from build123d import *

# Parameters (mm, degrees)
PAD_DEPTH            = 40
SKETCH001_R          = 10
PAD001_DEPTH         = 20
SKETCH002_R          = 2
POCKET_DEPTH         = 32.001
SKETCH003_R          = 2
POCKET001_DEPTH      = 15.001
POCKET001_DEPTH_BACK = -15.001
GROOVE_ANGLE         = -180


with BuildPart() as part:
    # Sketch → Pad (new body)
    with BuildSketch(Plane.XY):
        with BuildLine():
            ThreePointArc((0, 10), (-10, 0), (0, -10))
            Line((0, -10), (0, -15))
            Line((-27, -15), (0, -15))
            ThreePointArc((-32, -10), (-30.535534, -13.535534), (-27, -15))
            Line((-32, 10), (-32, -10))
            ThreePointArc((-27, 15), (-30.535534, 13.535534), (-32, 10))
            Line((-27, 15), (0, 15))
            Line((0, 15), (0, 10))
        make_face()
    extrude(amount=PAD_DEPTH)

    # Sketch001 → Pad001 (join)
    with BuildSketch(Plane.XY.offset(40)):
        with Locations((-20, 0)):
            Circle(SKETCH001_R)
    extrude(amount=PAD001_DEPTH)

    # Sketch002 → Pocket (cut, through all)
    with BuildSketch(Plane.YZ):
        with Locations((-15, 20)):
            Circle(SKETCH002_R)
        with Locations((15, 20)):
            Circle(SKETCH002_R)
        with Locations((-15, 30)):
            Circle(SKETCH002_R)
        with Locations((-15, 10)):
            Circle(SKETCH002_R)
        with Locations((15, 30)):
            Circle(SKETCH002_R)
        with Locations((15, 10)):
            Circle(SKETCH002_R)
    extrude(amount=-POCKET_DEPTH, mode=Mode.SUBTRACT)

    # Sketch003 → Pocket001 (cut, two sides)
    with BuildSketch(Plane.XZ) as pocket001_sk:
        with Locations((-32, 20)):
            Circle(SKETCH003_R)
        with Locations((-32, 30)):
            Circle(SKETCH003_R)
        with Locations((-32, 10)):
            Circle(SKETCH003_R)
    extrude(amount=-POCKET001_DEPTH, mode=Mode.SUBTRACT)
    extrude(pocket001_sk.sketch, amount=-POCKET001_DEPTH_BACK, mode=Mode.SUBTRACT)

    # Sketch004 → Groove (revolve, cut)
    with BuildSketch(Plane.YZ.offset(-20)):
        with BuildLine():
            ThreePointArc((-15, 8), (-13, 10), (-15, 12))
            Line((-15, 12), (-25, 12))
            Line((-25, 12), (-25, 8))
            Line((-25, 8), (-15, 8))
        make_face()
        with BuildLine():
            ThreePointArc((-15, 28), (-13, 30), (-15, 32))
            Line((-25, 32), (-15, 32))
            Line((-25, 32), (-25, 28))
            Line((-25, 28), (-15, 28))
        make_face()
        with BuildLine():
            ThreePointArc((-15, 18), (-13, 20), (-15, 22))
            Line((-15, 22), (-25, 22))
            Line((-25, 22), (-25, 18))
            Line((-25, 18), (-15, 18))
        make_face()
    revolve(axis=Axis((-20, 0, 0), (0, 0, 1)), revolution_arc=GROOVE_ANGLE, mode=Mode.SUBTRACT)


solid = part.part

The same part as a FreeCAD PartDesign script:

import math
import FreeCAD as App
import Part
import Sketcher
from FreeCAD import Vector
Q = App.Units.Quantity

doc = App.newDocument("Part")
body = doc.addObject("PartDesign::Body", "Body")

sketch1 = body.newObject("Sketcher::SketchObject", "Sketch")
sketch1.AttachmentSupport = (doc.getObject("XY_Plane"), [""])
sketch1.MapMode = "FlatFace"
sketch1.addGeometry([
    Part.ArcOfCircle(Part.Circle(Vector(0, 0, 0), Vector(0, 0, 1), 10), math.radians(90), math.radians(270)),
    Part.LineSegment(Vector(0, 10, 0), Vector(0, 15, 0)),
    Part.LineSegment(Vector(0, 15, 0), Vector(-27, 15, 0)),
    Part.ArcOfCircle(Part.Circle(Vector(-27, 10, 0), Vector(0, 0, 1), 5), math.radians(90), math.radians(180)),
    Part.LineSegment(Vector(-32, 10, 0), Vector(-32, -10, 0)),
    Part.ArcOfCircle(Part.Circle(Vector(-27, -10, 0), Vector(0, 0, 1), 5), math.radians(180), math.radians(270)),
    Part.LineSegment(Vector(-27, -15, 0), Vector(0, -15, 0)),
    Part.LineSegment(Vector(0, -15, 0), Vector(0, -10, 0)),
], False)
sketch1.addConstraint([
    Sketcher.Constraint("Coincident", 0, 1, 1, 1),
    Sketcher.Constraint("Coincident", 1, 2, 2, 1),
    Sketcher.Constraint("Tangent", 2, 2, 3, 1),
    Sketcher.Constraint("Tangent", 3, 2, 4, 1),
    Sketcher.Constraint("Tangent", 4, 2, 5, 1),
    Sketcher.Constraint("Tangent", 5, 2, 6, 1),
    Sketcher.Constraint("Coincident", 6, 2, 7, 1),
    Sketcher.Constraint("Coincident", 7, 2, 0, 2),
    Sketcher.Constraint("Vertical", 1),
    Sketcher.Constraint("Horizontal", 2),
    Sketcher.Constraint("Vertical", 4),
    Sketcher.Constraint("Horizontal", 6),
    Sketcher.Constraint("Vertical", 7),
    Sketcher.Constraint("Coincident", 0, 3, -1, 1),
    Sketcher.Constraint("Equal", 3, 5),
    Sketcher.Constraint("Symmetric", 1, 2, 6, 2, -1, 1),
    Sketcher.Constraint("PointOnObject", 0, 1, -2),
    Sketcher.Constraint("Horizontal", 3, 3, 0, 1),
    Sketcher.Constraint("Radius", 0, Q("10 mm")),
    Sketcher.Constraint("Radius", 3, Q("5 mm")),
    Sketcher.Constraint("DistanceX", 2, 2, 2, 1, Q("27 mm")),
])
pad1 = body.newObject("PartDesign::Pad", "Pad")
pad1.Profile = sketch1
pad1.Length = 40

sketch2 = body.newObject("Sketcher::SketchObject", "Sketch001")
sketch2.AttachmentSupport = (doc.getObject("XY_Plane"), [""])
sketch2.MapMode = "FlatFace"
sketch2.AttachmentOffset = App.Placement(Vector(0, 0, 40), App.Rotation())
sketch2.addGeometry(Part.Circle(Vector(-20, 0, 0), Vector(0, 0, 1), 10), False)
sketch2.addConstraint([
    Sketcher.Constraint("PointOnObject", 0, 3, -1),
    Sketcher.Constraint("Diameter", 0, Q("20 mm")),
    Sketcher.Constraint("DistanceX", 0, 3, -1, 1, Q("20 mm")),
])
pad2 = body.newObject("PartDesign::Pad", "Pad001")
pad2.Profile = sketch2
pad2.Length = 20

sketch3 = body.newObject("Sketcher::SketchObject", "Sketch002")
sketch3.AttachmentSupport = (doc.getObject("YZ_Plane"), [""])
sketch3.MapMode = "FlatFace"
sketch3.addGeometry([
    Part.Circle(Vector(-15, 20, 0), Vector(0, 0, 1), 2),
    Part.Circle(Vector(15, 20, 0), Vector(0, 0, 1), 2),
    Part.Circle(Vector(-15, 30, 0), Vector(0, 0, 1), 2),
    Part.Circle(Vector(-15, 10, 0), Vector(0, 0, 1), 2),
    Part.Circle(Vector(15, 30, 0), Vector(0, 0, 1), 2),
    Part.Circle(Vector(15, 10, 0), Vector(0, 0, 1), 2),
], False)
sketch3.addConstraint([
    Sketcher.Constraint("Equal", 0, 1),
    Sketcher.Constraint("Equal", 1, 2),
    Sketcher.Constraint("Equal", 2, 3),
    Sketcher.Constraint("Equal", 3, 4),
    Sketcher.Constraint("Equal", 4, 5),
    Sketcher.Constraint("Symmetric", 0, 3, 1, 3, -2),
    Sketcher.Constraint("Symmetric", 2, 3, 4, 3, -2),
    Sketcher.Constraint("Symmetric", 3, 3, 5, 3, -2),
    Sketcher.Constraint("Vertical", 0, 3, 2, 3),
    Sketcher.Constraint("Vertical", 2, 3, 3, 3),
    Sketcher.Constraint("Diameter", 0, Q("4 mm")),
    Sketcher.Constraint("DistanceX", 0, 3, -1, 1, Q("15 mm")),
    Sketcher.Constraint("DistanceY", -1, 1, 0, 3, Q("20 mm")),
    Sketcher.Constraint("DistanceY", -1, 1, 2, 3, Q("30 mm")),
    Sketcher.Constraint("DistanceY", -1, 1, 3, 3, Q("10 mm")),
])
pocket1 = body.newObject("PartDesign::Pocket", "Pocket")
pocket1.Profile = sketch3
pocket1.Type = "ThroughAll"

sketch4 = body.newObject("Sketcher::SketchObject", "Sketch003")
sketch4.AttachmentSupport = (doc.getObject("XZ_Plane"), [""])
sketch4.MapMode = "FlatFace"
sketch4.addGeometry([
    Part.Circle(Vector(-32, 20, 0), Vector(0, 0, 1), 2),
    Part.Circle(Vector(-32, 30, 0), Vector(0, 0, 1), 2),
    Part.Circle(Vector(-32, 10, 0), Vector(0, 0, 1), 2),
], False)
sketch4.addConstraint([
    Sketcher.Constraint("Equal", 0, 1),
    Sketcher.Constraint("Equal", 1, 2),
    Sketcher.Constraint("Vertical", 0, 3, 1, 3),
    Sketcher.Constraint("Vertical", 1, 3, 2, 3),
    Sketcher.Constraint("Diameter", 0, Q("4 mm")),
    Sketcher.Constraint("DistanceX", 0, 3, -1, 1, Q("32 mm")),
    Sketcher.Constraint("DistanceY", -1, 1, 0, 3, Q("20 mm")),
    Sketcher.Constraint("DistanceY", -1, 1, 1, 3, Q("30 mm")),
    Sketcher.Constraint("DistanceY", -1, 1, 2, 3, Q("10 mm")),
])
pocket2 = body.newObject("PartDesign::Pocket", "Pocket001")
pocket2.Profile = sketch4
pocket2.Type = "ThroughAll"
pocket2.Midplane = True

sketch5 = body.newObject("Sketcher::SketchObject", "Sketch004")
sketch5.AttachmentSupport = (doc.getObject("YZ_Plane"), [""])
sketch5.MapMode = "FlatFace"
sketch5.AttachmentOffset = App.Placement(Vector(0, 0, -20), App.Rotation())
sketch5.addGeometry([
    Part.ArcOfCircle(Part.Circle(Vector(-15, 10, 0), Vector(0, 0, 1), 2), math.radians(-90), math.radians(90)),
    Part.LineSegment(Vector(-15, 12, 0), Vector(-25, 12, 0)),
    Part.LineSegment(Vector(-25, 12, 0), Vector(-25, 8, 0)),
    Part.LineSegment(Vector(-25, 8, 0), Vector(-15, 8, 0)),
    Part.ArcOfCircle(Part.Circle(Vector(-15, 30, 0), Vector(0, 0, 1), 2), math.radians(-90), math.radians(90)),
    Part.LineSegment(Vector(-15, 32, 0), Vector(-25, 32, 0)),
    Part.LineSegment(Vector(-25, 32, 0), Vector(-25, 28, 0)),
    Part.LineSegment(Vector(-25, 28, 0), Vector(-15, 28, 0)),
    Part.ArcOfCircle(Part.Circle(Vector(-15, 20, 0), Vector(0, 0, 1), 2), math.radians(-90), math.radians(90)),
    Part.LineSegment(Vector(-15, 22, 0), Vector(-25, 22, 0)),
    Part.LineSegment(Vector(-25, 22, 0), Vector(-25, 18, 0)),
    Part.LineSegment(Vector(-25, 18, 0), Vector(-15, 18, 0)),
], False)
sketch5.addConstraint([
    Sketcher.Constraint("Tangent", 0, 2, 1, 1),
    Sketcher.Constraint("Coincident", 1, 2, 2, 1),
    Sketcher.Constraint("Coincident", 2, 2, 3, 1),
    Sketcher.Constraint("Tangent", 3, 2, 0, 1),
    Sketcher.Constraint("Tangent", 4, 2, 5, 1),
    Sketcher.Constraint("Coincident", 5, 2, 6, 1),
    Sketcher.Constraint("Coincident", 6, 2, 7, 1),
    Sketcher.Constraint("Tangent", 7, 2, 4, 1),
    Sketcher.Constraint("Tangent", 8, 2, 9, 1),
    Sketcher.Constraint("Coincident", 9, 2, 10, 1),
    Sketcher.Constraint("Coincident", 10, 2, 11, 1),
    Sketcher.Constraint("Tangent", 11, 2, 8, 1),
    Sketcher.Constraint("Horizontal", 1),
    Sketcher.Constraint("Vertical", 2),
    Sketcher.Constraint("Horizontal", 3),
    Sketcher.Constraint("Horizontal", 5),
    Sketcher.Constraint("Vertical", 6),
    Sketcher.Constraint("Horizontal", 7),
    Sketcher.Constraint("Horizontal", 9),
    Sketcher.Constraint("Vertical", 10),
    Sketcher.Constraint("Horizontal", 11),
    Sketcher.Constraint("Equal", 0, 4),
    Sketcher.Constraint("Equal", 4, 8),
    Sketcher.Constraint("Vertical", 0, 3, 4, 3),
    Sketcher.Constraint("Vertical", 4, 3, 8, 3),
    Sketcher.Constraint("Vertical", 2, 2, 5, 2),
    Sketcher.Constraint("Vertical", 6, 2, 9, 2),
    Sketcher.Constraint("Radius", 0, Q("2 mm")),
    Sketcher.Constraint("DistanceX", 1, 2, 1, 1, Q("10 mm")),
    Sketcher.Constraint("DistanceX", 0, 3, -1, 1, Q("15 mm")),
    Sketcher.Constraint("DistanceY", -1, 1, 0, 3, Q("10 mm")),
    Sketcher.Constraint("DistanceY", -1, 1, 4, 3, Q("30 mm")),
    Sketcher.Constraint("DistanceY", -1, 1, 8, 3, Q("20 mm")),
])
groove = body.newObject("PartDesign::Groove", "Groove")
groove.Profile = sketch5
groove.ReferenceAxis = (sketch5, ["V_Axis"])
groove.Angle = 180
groove.Reversed = True

doc.recompute()
